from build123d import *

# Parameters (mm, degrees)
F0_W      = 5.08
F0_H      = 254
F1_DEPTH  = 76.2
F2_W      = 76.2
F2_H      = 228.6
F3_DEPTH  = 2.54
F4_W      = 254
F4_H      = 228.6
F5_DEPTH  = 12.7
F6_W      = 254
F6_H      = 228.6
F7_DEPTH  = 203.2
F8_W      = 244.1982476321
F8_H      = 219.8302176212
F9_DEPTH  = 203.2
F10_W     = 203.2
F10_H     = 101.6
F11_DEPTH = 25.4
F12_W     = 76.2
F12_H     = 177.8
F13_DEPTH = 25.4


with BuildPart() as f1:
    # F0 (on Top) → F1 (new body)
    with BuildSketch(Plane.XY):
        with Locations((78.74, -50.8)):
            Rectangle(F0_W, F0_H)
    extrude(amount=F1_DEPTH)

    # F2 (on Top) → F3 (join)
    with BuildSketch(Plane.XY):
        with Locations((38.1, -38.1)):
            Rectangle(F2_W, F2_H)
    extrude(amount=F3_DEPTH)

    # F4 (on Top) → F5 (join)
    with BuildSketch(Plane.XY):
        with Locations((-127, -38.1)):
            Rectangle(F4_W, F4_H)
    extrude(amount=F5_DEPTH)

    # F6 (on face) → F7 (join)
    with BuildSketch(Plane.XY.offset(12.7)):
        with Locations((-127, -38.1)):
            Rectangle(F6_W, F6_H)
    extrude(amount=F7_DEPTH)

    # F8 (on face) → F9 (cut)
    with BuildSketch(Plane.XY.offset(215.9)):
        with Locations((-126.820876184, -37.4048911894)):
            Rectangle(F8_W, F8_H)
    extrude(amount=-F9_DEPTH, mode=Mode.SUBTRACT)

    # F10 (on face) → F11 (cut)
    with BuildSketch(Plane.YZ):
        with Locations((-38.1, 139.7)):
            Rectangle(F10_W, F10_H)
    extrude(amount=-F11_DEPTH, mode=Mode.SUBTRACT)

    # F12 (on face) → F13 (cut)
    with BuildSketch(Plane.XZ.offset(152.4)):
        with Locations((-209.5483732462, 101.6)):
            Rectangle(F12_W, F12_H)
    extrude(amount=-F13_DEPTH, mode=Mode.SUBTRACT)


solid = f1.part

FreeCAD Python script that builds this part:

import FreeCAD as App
import Part
import Sketcher
Q = App.Units.Quantity


def add_polygon(sketch, points):
    """Adds a closed chain of lines whose ends are joined by coincident constraints."""
    first, n = sketch.GeometryCount, len(points)
    for a, b in zip(points, points[1:] + points[:1]):
        sketch.addGeometry(Part.LineSegment(App.Vector(*a, 0), App.Vector(*b, 0)), False)
    for i in range(n):
        sketch.addConstraint(Sketcher.Constraint("Coincident", first + i, 2, first + (i + 1) % n, 1))

doc = App.newDocument("Part")
params = doc.addObject("Spreadsheet::Sheet", "Params")
for row, (alias, value) in enumerate([
    ("sketch1_height", "10 in"),
    ("sketch1_width", "0.2 in"),
    ("pad1_length", "3 in"),
    ("sketch2_width", "3 in"),
    ("sketch2_height", "9 in"),
    ("pad2_length", "0.1 in"),
    ("sketch3_width", "10 in"),
    ("sketch3_height", "9 in"),
    ("pad3_length", "0.5 in"),
    ("sketch4_width", "10 in"),
    ("sketch4_height", "9 in"),
    ("pad4_length", "8 in"),
    ("pocket1_length", "8 in"),
    ("sketch6_width", "8 in"),
    ("sketch6_height", "4 in"),
    ("pocket2_length", "1 in"),
    ("sketch7_width", "3 in"),
    ("sketch7_height", "7 in"),
    ("pocket3_length", "1 in"),
], start=1):
    params.set(f"A{row}", alias)
    params.set(f"B{row}", "=" + value)
    params.setAlias(f"B{row}", alias)

body = doc.addObject("PartDesign::Body", "Body")

# Sketch on XY plane
sketch1 = body.newObject("Sketcher::SketchObject", "Sketch")
sketch1.AttachmentSupport = (doc.getObject("XY_Plane"), [""])
sketch1.MapMode = "FlatFace"
add_polygon(sketch1, [(76.2, 76.2), (76.2, -177.8), (81.28, -177.8), (81.28, 76.2)])  # lines 0-3
sketch1.addConstraint([
    Sketcher.Constraint("Vertical", 0),
    Sketcher.Constraint("Horizontal", 1),
    Sketcher.Constraint("Vertical", 2),
    Sketcher.Constraint("Horizontal", 3),
    Sketcher.Constraint("DistanceY", 0, 2, 0, 1, Q("10 in")),
    Sketcher.Constraint("DistanceX", 1, 1, 1, 2, Q("0.2 in")),
    Sketcher.Constraint("DistanceX", -1, 1, 0, 2, Q("3 in")),
    Sketcher.Constraint("DistanceY", 0, 2, -1, 1, Q("7 in")),
])
sketch1.setExpression("Constraints[8]", "Params.sketch1_height")
sketch1.setExpression("Constraints[9]", "Params.sketch1_width")
pad1 = body.newObject("PartDesign::Pad", "Pad")
pad1.Profile = sketch1
pad1.setExpression("Length", "Params.pad1_length")

# Sketch on XY plane
sketch2 = body.newObject("Sketcher::SketchObject", "Sketch001")
sketch2.AttachmentSupport = (doc.getObject("XY_Plane"), [""])
sketch2.MapMode = "FlatFace"
add_polygon(sketch2, [(0, 76.2), (0, -152.4), (76.2, -152.4), (76.2, 76.2)])  # lines 0-3
sketch2.addConstraint([
    Sketcher.Constraint("Vertical", 0),
    Sketcher.Constraint("Horizontal", 1),
    Sketcher.Constraint("Vertical", 2),
    Sketcher.Constraint("Horizontal", 3),
    Sketcher.Constraint("PointOnObject", 0, 2, -2),
    Sketcher.Constraint("DistanceX", 1, 1, 1, 2, Q("3 in")),
    Sketcher.Constraint("DistanceY", 0, 2, 0, 1, Q("9 in")),
    Sketcher.Constraint("DistanceY", 0, 2, -1, 1, Q("6 in")),
])
sketch2.setExpression("Constraints[9]", "Params.sketch2_width")
sketch2.setExpression("Constraints[10]", "Params.sketch2_height")
pad2 = body.newObject("PartDesign::Pad", "Pad001")
pad2.Profile = sketch2
pad2.setExpression("Length", "Params.pad2_length")

# Sketch on XY plane
sketch3 = body.newObject("Sketcher::SketchObject", "Sketch002")
sketch3.AttachmentSupport = (doc.getObject("XY_Plane"), [""])
sketch3.MapMode = "FlatFace"
add_polygon(sketch3, [(-254, 76.2), (-254, -152.4), (0, -152.4), (0, 76.2)])  # lines 0-3
sketch3.addConstraint([
    Sketcher.Constraint("Vertical", 0),
    Sketcher.Constraint("Horizontal", 1),
    Sketcher.Constraint("Vertical", 2),
    Sketcher.Constraint("Horizontal", 3),
    Sketcher.Constraint("PointOnObject", 1, 2, -2),
    Sketcher.Constraint("DistanceX", 1, 1, 1, 2, Q("10 in")),
    Sketcher.Constraint("DistanceY", 0, 2, 0, 1, Q("9 in")),
    Sketcher.Constraint("DistanceY", 0, 2, -1, 1, Q("6 in")),
])
sketch3.setExpression("Constraints[9]", "Params.sketch3_width")
sketch3.setExpression("Constraints[10]", "Params.sketch3_height")
pad3 = body.newObject("PartDesign::Pad", "Pad002")
pad3.Profile = sketch3
pad3.setExpression("Length", "Params.pad3_length")

# Sketch on XY plane
sketch4 = body.newObject("Sketcher::SketchObject", "Sketch003")
sketch4.AttachmentSupport = (doc.getObject("XY_Plane"), [""])
sketch4.MapMode = "FlatFace"
sketch4.AttachmentOffset = App.Placement(App.Vector(0, 0, 0.5 * 25.4), App.Rotation())
add_polygon(sketch4, [(-254, 76.2), (-254, -152.4), (0, -152.4), (0, 76.2)])  # lines 0-3
sketch4.addConstraint([
    Sketcher.Constraint("Vertical", 0),
    Sketcher.Constraint("Horizontal", 1),
    Sketcher.Constraint("Vertical", 2),
    Sketcher.Constraint("Horizontal", 3),
    Sketcher.Constraint("PointOnObject", 1, 2, -2),
    Sketcher.Constraint("DistanceX", 1, 1, 1, 2, Q("10 in")),
    Sketcher.Constraint("DistanceY", 0, 2, 0, 1, Q("9 in")),
    Sketcher.Constraint("DistanceY", 0, 2, -1, 1, Q("6 in")),
])
sketch4.setExpression("Constraints[9]", "Params.sketch4_width")
sketch4.setExpression("Constraints[10]", "Params.sketch4_height")
pad4 = body.newObject("PartDesign::Pad", "Pad003")
pad4.Profile = sketch4
pad4.setExpression("Length", "Params.pad4_length")

# Sketch on XY plane
sketch5 = body.newObject("Sketcher::SketchObject", "Sketch004")
sketch5.AttachmentSupport = (doc.getObject("XY_Plane"), [""])
sketch5.MapMode = "FlatFace"
sketch5.AttachmentOffset = App.Placement(App.Vector(0, 0, 8.5 * 25.4), App.Rotation())
add_polygon(sketch5, [(-248.92, 72.510218), (-248.92, -147.32), (-4.721752, -147.32), (-4.721752, 72.510218)])  # lines 0-3
sketch5.addConstraint([
    Sketcher.Constraint("Vertical", 0),
    Sketcher.Constraint("Horizontal", 1),
    Sketcher.Constraint("Vertical", 2),
    Sketcher.Constraint("Horizontal", 3),
    Sketcher.Constraint("DistanceX", 0, 2, -1, 1, Q("9.8 in")),
    Sketcher.Constraint("DistanceY", 0, 2, -1, 1, Q("5.8 in")),
    Sketcher.Constraint("DistanceX", 1, 1, 1, 2, 244.198248),
    Sketcher.Constraint("DistanceY", 0, 2, 0, 1, 219.830218),
])
pocket1 = body.newObject("PartDesign::Pocket", "Pocket")
pocket1.Profile = sketch5
pocket1.setExpression("Length", "Params.pocket1_length")

# Sketch on YZ plane
sketch6 = body.newObject("Sketcher::SketchObject", "Sketch005")
sketch6.AttachmentSupport = (doc.getObject("YZ_Plane"), [""])
sketch6.MapMode = "FlatFace"
add_polygon(sketch6, [(-139.7, 190.5), (-139.7, 88.9), (63.5, 88.9), (63.5, 190.5)])  # lines 0-3
sketch6.addConstraint([
    Sketcher.Constraint("Vertical", 0),
    Sketcher.Constraint("Horizontal", 1),
    Sketcher.Constraint("Vertical", 2),
    Sketcher.Constraint("Horizontal", 3),
    Sketcher.Constraint("DistanceX", 1, 1, 1, 2, Q("8 in")),
    Sketcher.Constraint("DistanceY", 0, 2, 0, 1, Q("4 in")),
    Sketcher.Constraint("DistanceX", 0, 2, -1, 1, Q("5.5 in")),
    Sketcher.Constraint("DistanceY", -1, 1, 0, 2, Q("3.5 in")),
])
sketch6.setExpression("Constraints[8]", "Params.sketch6_width")
sketch6.setExpression("Constraints[9]", "Params.sketch6_height")
pocket2 = body.newObject("PartDesign::Pocket", "Pocket001")
pocket2.Profile = sketch6
pocket2.setExpression("Length", "Params.pocket2_length")

# Sketch on XZ plane
sketch7 = body.newObject("Sketcher::SketchObject", "Sketch006")
sketch7.AttachmentSupport = (doc.getObject("XZ_Plane"), [""])
sketch7.MapMode = "FlatFace"
sketch7.AttachmentOffset = App.Placement(App.Vector(0, 0, 6 * 25.4), App.Rotation())
add_polygon(sketch7, [(-247.648373, 190.5), (-247.648373, 12.7), (-171.448373, 12.7), (-171.448373, 190.5)])  # lines 0-3
sketch7.addConstraint([
    Sketcher.Constraint("Vertical", 0),
    Sketcher.Constraint("Horizontal", 1),
    Sketcher.Constraint("Vertical", 2),
    Sketcher.Constraint("Horizontal", 3),
    Sketcher.Constraint("DistanceX", 1, 1, 1, 2, Q("3 in")),
    Sketcher.Constraint("DistanceY", 0, 2, 0, 1, Q("7 in")),
    Sketcher.Constraint("DistanceY", -1, 1, 0, 2, Q("0.5 in")),
    Sketcher.Constraint("DistanceX", 0, 2, -1, 1, 247.648373),
])
sketch7.setExpression("Constraints[8]", "Params.sketch7_width")
sketch7.setExpression("Constraints[9]", "Params.sketch7_height")
pocket3 = body.newObject("PartDesign::Pocket", "Pocket002")
pocket3.Profile = sketch7
pocket3.setExpression("Length", "Params.pocket3_length")

doc.recompute()
